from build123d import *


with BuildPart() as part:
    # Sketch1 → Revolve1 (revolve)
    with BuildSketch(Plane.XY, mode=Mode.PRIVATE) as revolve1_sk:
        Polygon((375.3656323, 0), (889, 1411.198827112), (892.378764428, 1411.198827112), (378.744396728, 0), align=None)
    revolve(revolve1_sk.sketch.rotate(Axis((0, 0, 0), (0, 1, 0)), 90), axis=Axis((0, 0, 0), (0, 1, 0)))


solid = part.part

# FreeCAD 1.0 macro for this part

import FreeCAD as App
import Part
import Sketcher

V = App.Vector
Q = App.Units.Quantity


def add_polygon(sketch, points):
    """Adds a closed chain of lines whose ends are joined by coincident constraints."""
    first, n = sketch.GeometryCount, len(points)
    for a, b in zip(points, points[1:] + points[:1]):
        sketch.addGeometry(Part.LineSegment(App.Vector(*a, 0), App.Vector(*b, 0)), False)
    for i in range(n):
        sketch.addConstraint(Sketcher.Constraint("Coincident", first + i, 2, first + (i + 1) % n, 1))

doc = App.newDocument("Part")
body = doc.addObject("PartDesign::Body", "Body")

# Sketch on XY plane
sketch1 = body.newObject("Sketcher::SketchObject", "Sketch")
sketch1.AttachmentSupport = (doc.getObject("XY_Plane"), [""])
sketch1.MapMode = "FlatFace"
add_polygon(sketch1, [(889, 1411.2), (375.4, 0), (378.7, 0), (892.4, 1411.2)])  # lines 0-3
sketch1.addConstraint([
    Sketcher.Constraint("Horizontal", 1),
    Sketcher.Constraint("Horizontal", 3),
    Sketcher.Constraint("PointOnObject", 0, 2, -1),
    Sketcher.Constraint("Parallel", 0, 2),
    Sketcher.Constraint("Angle", 0, Q("-110 deg")),
    Sketcher.Constraint("DistanceX", -1, 1, 3, 2, Q("889 mm")),
    Sketcher.Constraint("DistanceX", 1, 1, 1, 2, Q("3.378764 mm")),
    Sketcher.Constraint("Distance", 0, Q("1501.766424 mm")),
])
revolution = body.newObject("PartDesign::Revolution", "Revolution")
revolution.Profile = sketch1
revolution.ReferenceAxis = (sketch1, ["V_Axis"])
revolution.Angle = 360

doc.recompute()
